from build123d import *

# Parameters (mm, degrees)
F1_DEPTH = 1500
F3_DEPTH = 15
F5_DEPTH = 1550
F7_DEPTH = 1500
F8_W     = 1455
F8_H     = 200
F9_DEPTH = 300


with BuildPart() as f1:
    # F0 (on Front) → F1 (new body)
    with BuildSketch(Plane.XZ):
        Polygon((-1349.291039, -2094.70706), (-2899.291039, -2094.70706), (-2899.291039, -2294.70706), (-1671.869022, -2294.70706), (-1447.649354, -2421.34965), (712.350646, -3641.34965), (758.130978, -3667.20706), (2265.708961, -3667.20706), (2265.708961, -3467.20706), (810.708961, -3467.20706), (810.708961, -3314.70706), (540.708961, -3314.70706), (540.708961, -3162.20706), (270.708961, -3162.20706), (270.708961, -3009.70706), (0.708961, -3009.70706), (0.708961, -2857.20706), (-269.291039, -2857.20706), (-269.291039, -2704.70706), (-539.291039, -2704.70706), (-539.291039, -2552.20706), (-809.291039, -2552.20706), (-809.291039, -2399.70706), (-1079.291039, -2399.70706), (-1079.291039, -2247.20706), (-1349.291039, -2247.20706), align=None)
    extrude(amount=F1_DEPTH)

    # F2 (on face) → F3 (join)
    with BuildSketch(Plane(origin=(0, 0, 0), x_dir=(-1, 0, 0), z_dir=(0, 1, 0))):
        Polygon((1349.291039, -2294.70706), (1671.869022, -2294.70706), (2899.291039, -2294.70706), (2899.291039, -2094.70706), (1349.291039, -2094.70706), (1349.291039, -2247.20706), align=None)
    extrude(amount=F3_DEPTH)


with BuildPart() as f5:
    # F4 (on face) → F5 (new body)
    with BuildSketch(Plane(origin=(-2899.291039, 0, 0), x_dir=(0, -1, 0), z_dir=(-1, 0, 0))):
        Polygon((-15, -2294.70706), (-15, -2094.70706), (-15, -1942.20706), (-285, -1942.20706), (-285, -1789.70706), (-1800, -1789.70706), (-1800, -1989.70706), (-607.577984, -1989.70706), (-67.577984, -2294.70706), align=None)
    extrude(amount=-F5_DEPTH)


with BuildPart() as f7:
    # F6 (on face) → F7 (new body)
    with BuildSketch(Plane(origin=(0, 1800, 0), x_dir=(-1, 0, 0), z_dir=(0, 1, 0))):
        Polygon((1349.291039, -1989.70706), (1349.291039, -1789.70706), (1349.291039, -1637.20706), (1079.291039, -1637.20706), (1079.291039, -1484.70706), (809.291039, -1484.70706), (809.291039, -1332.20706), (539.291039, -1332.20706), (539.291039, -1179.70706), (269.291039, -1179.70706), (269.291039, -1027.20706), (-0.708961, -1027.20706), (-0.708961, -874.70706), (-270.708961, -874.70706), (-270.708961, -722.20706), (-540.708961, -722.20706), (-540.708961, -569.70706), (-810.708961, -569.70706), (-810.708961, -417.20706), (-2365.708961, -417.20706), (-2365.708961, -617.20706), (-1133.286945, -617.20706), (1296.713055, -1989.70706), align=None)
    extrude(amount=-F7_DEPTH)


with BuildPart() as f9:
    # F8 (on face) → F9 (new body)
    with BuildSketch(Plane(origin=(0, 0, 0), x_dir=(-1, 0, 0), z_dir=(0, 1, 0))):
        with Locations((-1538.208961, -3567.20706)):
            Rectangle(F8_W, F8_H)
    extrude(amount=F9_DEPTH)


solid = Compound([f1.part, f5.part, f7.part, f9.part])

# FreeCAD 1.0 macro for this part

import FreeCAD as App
import Part
import Sketcher


def add_polygon(sketch, points):
    """Adds a closed chain of lines whose ends are joined by coincident constraints."""
    first, n = sketch.GeometryCount, len(points)
    for a, b in zip(points, points[1:] + points[:1]):
        sketch.addGeometry(Part.LineSegment(App.Vector(*a, 0), App.Vector(*b, 0)), False)
    for i in range(n):
        sketch.addConstraint(Sketcher.Constraint("Coincident", first + i, 2, first + (i + 1) % n, 1))

doc = App.newDocument("Part")
params = doc.addObject("Spreadsheet::Sheet", "Params")
for row, (alias, value) in enumerate([
    ("sketch1_width", "1550 mm"),
    ("sketch1_width2", "1455 mm"),
    ("sketch1_width3", "270 mm"),
    ("sketch1_height", "200 mm"),
    ("sketch1_height2", "152.5 mm"),
    ("pad1_length", "1500 mm"),
    ("sketch2_width", "1550 mm"),
    ("sketch2_height", "200 mm"),
    ("pad2_length", "15 mm"),
    ("sketch3_width", "270 mm"),
    ("sketch3_width2", "1515 mm"),
    ("sketch3_height", "200 mm"),
    ("sketch3_height2", "352.5 mm"),
    ("sketch3_height3", "152.5 mm"),
    ("pad3_length", "1550 mm"),
    ("sketch4_width", "270 mm"),
    ("sketch4_width2", "1555 mm"),
    ("sketch4_height", "200 mm"),
    ("sketch4_height2", "352.5 mm"),
    ("sketch4_height3", "152.5 mm"),
    ("pad4_length", "1500 mm"),
    ("sketch5_width", "1455 mm"),
    ("sketch5_height", "200 mm"),
    ("pad5_length", "300 mm"),
], start=1):
    params.set(f"A{row}", alias)
    params.set(f"B{row}", "=" + value)
    params.setAlias(f"B{row}", alias)

body = doc.addObject("PartDesign::Body", "Body")

# Sketch on XZ plane
sketch1 = doc.addObject("Sketcher::SketchObject", "Sketch")
body.addObject(sketch1)
sketch1.AttachmentSupport = (doc.XZ_Plane, [""])
sketch1.MapMode = "FlatFace"
add_polygon(sketch1, [(-1349.291039, -2094.70706), (-2899.291039, -2094.70706), (-2899.291039, -2294.70706), (-1671.869022, -2294.70706), (-1447.649354, -2421.34965), (712.350646, -3641.34965), (758.130978, -3667.20706), (2265.708961, -3667.20706), (2265.708961, -3467.20706), (810.708961, -3467.20706), (810.708961, -3314.70706), (540.708961, -3314.70706), (540.708961, -3162.20706), (270.708961, -3162.20706), (270.708961, -3009.70706), (0.708961, -3009.70706), (0.708961, -2857.20706), (-269.291039, -2857.20706), (-269.291039, -2704.70706), (-539.291039, -2704.70706), (-539.291039, -2552.20706), (-809.291039, -2552.20706), (-809.291039, -2399.70706), (-1079.291039, -2399.70706), (-1079.291039, -2247.20706), (-1349.291039, -2247.20706)])  # lines 0-25
sketch1.addConstraint(Sketcher.Constraint("Horizontal", 0))
sketch1.addConstraint(Sketcher.Constraint("Vertical", 1))
sketch1.addConstraint(Sketcher.Constraint("Horizontal", 2))
sketch1.addConstraint(Sketcher.Constraint("Horizontal", 6))
sketch1.addConstraint(Sketcher.Constraint("Vertical", 7))
sketch1.addConstraint(Sketcher.Constraint("Horizontal", 8))
sketch1.addConstraint(Sketcher.Constraint("Vertical", 9))
sketch1.addConstraint(Sketcher.Constraint("Horizontal", 10))
sketch1.addConstraint(Sketcher.Constraint("Vertical", 11))
sketch1.addConstraint(Sketcher.Constraint("Horizontal", 12))
sketch1.addConstraint(Sketcher.Constraint("Vertical", 13))
sketch1.addConstraint(Sketcher.Constraint("Horizontal", 14))
sketch1.addConstraint(Sketcher.Constraint("Vertical", 15))
sketch1.addConstraint(Sketcher.Constraint("Horizontal", 16))
sketch1.addConstraint(Sketcher.Constraint("Vertical", 17))
sketch1.addConstraint(Sketcher.Constraint("Horizontal", 18))
sketch1.addConstraint(Sketcher.Constraint("Vertical", 19))
sketch1.addConstraint(Sketcher.Constraint("Horizontal", 20))
sketch1.addConstraint(Sketcher.Constraint("Vertical", 21))
sketch1.addConstraint(Sketcher.Constraint("Horizontal", 22))
sketch1.addConstraint(Sketcher.Constraint("Vertical", 23))
sketch1.addConstraint(Sketcher.Constraint("Horizontal", 24))
sketch1.addConstraint(Sketcher.Constraint("Vertical", 25))
sketch1.addConstraint(Sketcher.Constraint("Parallel", 3, 4))
sketch1.addConstraint(Sketcher.Constraint("Parallel", 4, 5))
sketch1.addConstraint(Sketcher.Constraint("Equal", 10, 12))
sketch1.addConstraint(Sketcher.Constraint("Equal", 12, 14))
sketch1.addConstraint(Sketcher.Constraint("Equal", 14, 16))
sketch1.addConstraint(Sketcher.Constraint("Equal", 16, 18))
sketch1.addConstraint(Sketcher.Constraint("Equal", 18, 20))
sketch1.addConstraint(Sketcher.Constraint("Equal", 20, 22))
sketch1.addConstraint(Sketcher.Constraint("Equal", 22, 24))
sketch1.addConstraint(Sketcher.Constraint("Equal", 1, 7))
sketch1.addConstraint(Sketcher.Constraint("Equal", 9, 11))
sketch1.addConstraint(Sketcher.Constraint("Equal", 11, 13))
sketch1.addConstraint(Sketcher.Constraint("Equal", 13, 15))
sketch1.addConstraint(Sketcher.Constraint("Equal", 15, 17))
sketch1.addConstraint(Sketcher.Constraint("Equal", 17, 19))
sketch1.addConstraint(Sketcher.Constraint("Equal", 19, 21))
sketch1.addConstraint(Sketcher.Constraint("Equal", 21, 23))
sketch1.addConstraint(Sketcher.Constraint("Equal", 23, 25))
sketch1.addConstraint(Sketcher.Constraint("DistanceX", 0, 2, 0, 1, 1550.0))
sketch1.addConstraint(Sketcher.Constraint("DistanceX", 8, 2, 8, 1, 1455.0))
sketch1.addConstraint(Sketcher.Constraint("DistanceX", 10, 2, 10, 1, 270.0))
sketch1.addConstraint(Sketcher.Constraint("DistanceY", 1, 2, 1, 1, 200.0))
sketch1.addConstraint(Sketcher.Constraint("DistanceY", 9, 1, 9, 2, 152.5))
sketch1.addConstraint(Sketcher.Constraint("DistanceX", 3, 2, 4, 2, 2160.0))
sketch1.addConstraint(Sketcher.Constraint("DistanceY", 4, 2, 3, 2, 1220.0))
sketch1.addConstraint(Sketcher.Constraint("Distance", 3, 257.512728))
sketch1.addConstraint(Sketcher.Constraint("DistanceX", 2, 1, 2, 2, 1227.422017))
sketch1.addConstraint(Sketcher.Constraint("DistanceX", 0, 2, -1, 1, 2899.291039))
sketch1.addConstraint(Sketcher.Constraint("DistanceY", 0, 2, -1, 1, 2094.70706))
sketch1.setExpression("Constraints[67]", "Params.sketch1_width")
sketch1.setExpression("Constraints[68]", "Params.sketch1_width2")
sketch1.setExpression("Constraints[69]", "Params.sketch1_width3")
sketch1.setExpression("Constraints[70]", "Params.sketch1_height")
sketch1.setExpression("Constraints[71]", "Params.sketch1_height2")
pad1 = doc.addObject("PartDesign::Pad", "Pad")
body.addObject(pad1)
pad1.Profile = sketch1
pad1.setExpression("Length", "Params.pad1_length")

# Sketch on XZ plane
sketch2 = doc.addObject("Sketcher::SketchObject", "Sketch001")
body.addObject(sketch2)
sketch2.AttachmentSupport = (doc.XZ_Plane, [""])
sketch2.MapMode = "FlatFace"
add_polygon(sketch2, [(-1349.291039, -2294.70706), (-2899.291039, -2294.70706), (-2899.291039, -2094.70706), (-1349.291039, -2094.70706)])  # lines 0-3
sketch2.addConstraint(Sketcher.Constraint("Horizontal", 0))
sketch2.addConstraint(Sketcher.Constraint("Vertical", 1))
sketch2.addConstraint(Sketcher.Constraint("Horizontal", 2))
sketch2.addConstraint(Sketcher.Constraint("Vertical", 3))
sketch2.addConstraint(Sketcher.Constraint("DistanceX", 0, 2, 0, 1, 1550.0))
sketch2.addConstraint(Sketcher.Constraint("DistanceY", 1, 1, 1, 2, 200.0))
sketch2.addConstraint(Sketcher.Constraint("DistanceX", 0, 2, -1, 1, 2899.291039))
sketch2.addConstraint(Sketcher.Constraint("DistanceY", 0, 2, -1, 1, 2294.70706))
sketch2.setExpression("Constraints[8]", "Params.sketch2_width")
sketch2.setExpression("Constraints[9]", "Params.sketch2_height")
pad2 = doc.addObject("PartDesign::Pad", "Pad001")
body.addObject(pad2)
pad2.Profile = sketch2
pad2.setExpression("Length", "Params.pad2_length")
pad2.Reversed = True
body2 = doc.addObject("PartDesign::Body", "Body001")

# Sketch on YZ plane
sketch3 = doc.addObject("Sketcher::SketchObject", "Sketch002")
body2.addObject(sketch3)
sketch3.AttachmentSupport = (doc.getObject("YZ_Plane001"), [""])
sketch3.MapMode = "FlatFace"
sketch3.AttachmentOffset = App.Placement(App.Vector(0, 0, -2899.291039), App.Rotation())
add_polygon(sketch3, [(15, -2294.70706), (15, -1942.20706), (285, -1942.20706), (285, -1789.70706), (1800, -1789.70706), (1800, -1989.70706), (607.577984, -1989.70706), (67.577984, -2294.70706)])  # lines 0-7
sketch3.addConstraint(Sketcher.Constraint("Vertical", 0))
sketch3.addConstraint(Sketcher.Constraint("Horizontal", 1))
sketch3.addConstraint(Sketcher.Constraint("Vertical", 2))
sketch3.addConstraint(Sketcher.Constraint("Horizontal", 3))
sketch3.addConstraint(Sketcher.Constraint("Vertical", 4))
sketch3.addConstraint(Sketcher.Constraint("Horizontal", 5))
sketch3.addConstraint(Sketcher.Constraint("Horizontal", 7))
sketch3.addConstraint(Sketcher.Constraint("DistanceX", 1, 1, 1, 2, 270.0))
sketch3.addConstraint(Sketcher.Constraint("DistanceX", 3, 1, 3, 2, 1515.0))
sketch3.addConstraint(Sketcher.Constraint("DistanceY", 4, 2, 4, 1, 200.0))
sketch3.addConstraint(Sketcher.Constraint("DistanceY", 0, 1, 0, 2, 352.5))
sketch3.addConstraint(Sketcher.Constraint("DistanceY", 2, 1, 2, 2, 152.5))
sketch3.addConstraint(Sketcher.Constraint("DistanceX", -1, 1, 0, 2, 15.0))
sketch3.addConstraint(Sketcher.Constraint("DistanceX", 6, 2, 5, 2, 540.0))
sketch3.addConstraint(Sketcher.Constraint("DistanceX", 5, 2, 5, 1, 1192.422016))
sketch3.addConstraint(Sketcher.Constraint("DistanceY", 0, 2, -1, 1, 1942.20706))
sketch3.setExpression("Constraints[15]", "Params.sketch3_width")
sketch3.setExpression("Constraints[16]", "Params.sketch3_width2")
sketch3.setExpression("Constraints[17]", "Params.sketch3_height")
sketch3.setExpression("Constraints[18]", "Params.sketch3_height2")
sketch3.setExpression("Constraints[19]", "Params.sketch3_height3")
pad3 = doc.addObject("PartDesign::Pad", "Pad002")
body2.addObject(pad3)
pad3.Profile = sketch3
pad3.setExpression("Length", "Params.pad3_length")
body3 = doc.addObject("PartDesign::Body", "Body002")

# Sketch on XZ plane
sketch4 = doc.addObject("Sketcher::SketchObject", "Sketch003")
body3.addObject(sketch4)
sketch4.AttachmentSupport = (doc.getObject("XZ_Plane002"), [""])
sketch4.MapMode = "FlatFace"
sketch4.AttachmentOffset = App.Placement(App.Vector(0, 0, -1800), App.Rotation())
add_polygon(sketch4, [(-1349.291039, -1989.70706), (-1349.291039, -1637.20706), (-1079.291039, -1637.20706), (-1079.291039, -1484.70706), (-809.291039, -1484.70706), (-809.291039, -1332.20706), (-539.291039, -1332.20706), (-539.291039, -1179.70706), (-269.291039, -1179.70706), (-269.291039, -1027.20706), (0.708961, -1027.20706), (0.708961, -874.70706), (270.708961, -874.70706), (270.708961, -722.20706), (540.708961, -722.20706), (540.708961, -569.70706), (810.708961, -569.70706), (810.708961, -417.20706), (2365.708961, -417.20706), (2365.708961, -617.20706), (1133.286945, -617.20706), (-1296.713055, -1989.70706)])  # lines 0-21
sketch4.addConstraint(Sketcher.Constraint("Vertical", 0))
sketch4.addConstraint(Sketcher.Constraint("Horizontal", 1))
sketch4.addConstraint(Sketcher.Constraint("Vertical", 2))
sketch4.addConstraint(Sketcher.Constraint("Horizontal", 3))
sketch4.addConstraint(Sketcher.Constraint("Vertical", 4))
sketch4.addConstraint(Sketcher.Constraint("Horizontal", 5))
sketch4.addConstraint(Sketcher.Constraint("Vertical", 6))
sketch4.addConstraint(Sketcher.Constraint("Horizontal", 7))
sketch4.addConstraint(Sketcher.Constraint("Vertical", 8))
sketch4.addConstraint(Sketcher.Constraint("Horizontal", 9))
sketch4.addConstraint(Sketcher.Constraint("Vertical", 10))
sketch4.addConstraint(Sketcher.Constraint("Horizontal", 11))
sketch4.addConstraint(Sketcher.Constraint("Vertical", 12))
sketch4.addConstraint(Sketcher.Constraint("Horizontal", 13))
sketch4.addConstraint(Sketcher.Constraint("Vertical", 14))
sketch4.addConstraint(Sketcher.Constraint("Horizontal", 15))
sketch4.addConstraint(Sketcher.Constraint("Vertical", 16))
sketch4.addConstraint(Sketcher.Constraint("Horizontal", 17))
sketch4.addConstraint(Sketcher.Constraint("Vertical", 18))
sketch4.addConstraint(Sketcher.Constraint("Horizontal", 19))
sketch4.addConstraint(Sketcher.Constraint("Horizontal", 21))
sketch4.addConstraint(Sketcher.Constraint("Equal", 1, 3))
sketch4.addConstraint(Sketcher.Constraint("Equal", 3, 5))
sketch4.addConstraint(Sketcher.Constraint("Equal", 5, 7))
sketch4.addConstraint(Sketcher.Constraint("Equal", 7, 9))
sketch4.addConstraint(Sketcher.Constraint("Equal", 9, 11))
sketch4.addConstraint(Sketcher.Constraint("Equal", 11, 13))
sketch4.addConstraint(Sketcher.Constraint("Equal", 13, 15))
sketch4.addConstraint(Sketcher.Constraint("Equal", 2, 4))
sketch4.addConstraint(Sketcher.Constraint("Equal", 4, 6))
sketch4.addConstraint(Sketcher.Constraint("Equal", 6, 8))
sketch4.addConstraint(Sketcher.Constraint("Equal", 8, 10))
sketch4.addConstraint(Sketcher.Constraint("Equal", 10, 12))
sketch4.addConstraint(Sketcher.Constraint("Equal", 12, 14))
sketch4.addConstraint(Sketcher.Constraint("Equal", 14, 16))
sketch4.addConstraint(Sketcher.Constraint("DistanceX", 1, 1, 1, 2, 270.0))
sketch4.addConstraint(Sketcher.Constraint("DistanceX", 17, 1, 17, 2, 1555.0))
sketch4.addConstraint(Sketcher.Constraint("DistanceY", 18, 2, 18, 1, 200.0))
sketch4.addConstraint(Sketcher.Constraint("DistanceY", 0, 1, 0, 2, 352.5))
sketch4.addConstraint(Sketcher.Constraint("DistanceY", 2, 1, 2, 2, 152.5))
sketch4.addConstraint(Sketcher.Constraint("DistanceX", 19, 2, 19, 1, 1232.422016))
sketch4.addConstraint(Sketcher.Constraint("DistanceX", 21, 2, 21, 1, 52.577984))
sketch4.addConstraint(Sketcher.Constraint("DistanceX", 0, 2, -1, 1, 1349.291039))
sketch4.addConstraint(Sketcher.Constraint("DistanceY", 0, 2, -1, 1, 1637.20706))
sketch4.setExpression("Constraints[57]", "Params.sketch4_width")
sketch4.setExpression("Constraints[58]", "Params.sketch4_width2")
sketch4.setExpression("Constraints[59]", "Params.sketch4_height")
sketch4.setExpression("Constraints[60]", "Params.sketch4_height2")
sketch4.setExpression("Constraints[61]", "Params.sketch4_height3")
pad4 = doc.addObject("PartDesign::Pad", "Pad003")
body3.addObject(pad4)
pad4.Profile = sketch4
pad4.setExpression("Length", "Params.pad4_length")
body4 = doc.addObject("PartDesign::Body", "Body003")

# Sketch on XZ plane
sketch5 = doc.addObject("Sketcher::SketchObject", "Sketch004")
body4.addObject(sketch5)
sketch5.AttachmentSupport = (doc.getObject("XZ_Plane003"), [""])
sketch5.MapMode = "FlatFace"
add_polygon(sketch5, [(2265.708961, -3467.20706), (2265.708961, -3667.20706), (810.708961, -3667.20706), (810.708961, -3467.20706)])  # lines 0-3
sketch5.addConstraint(Sketcher.Constraint("Vertical", 0))
sketch5.addConstraint(Sketcher.Constraint("Horizontal", 1))
sketch5.addConstraint(Sketcher.Constraint("Vertical", 2))
sketch5.addConstraint(Sketcher.Constraint("Horizontal", 3))
sketch5.addConstraint(Sketcher.Constraint("DistanceX", 1, 2, 1, 1, 1455.0))
sketch5.addConstraint(Sketcher.Constraint("DistanceY", 0, 2, 0, 1, 200.0))
sketch5.addConstraint(Sketcher.Constraint("DistanceX", -1, 1, 0, 2, 2265.708961))
sketch5.addConstraint(Sketcher.Constraint("DistanceY", 0, 2, -1, 1, 3667.20706))
sketch5.setExpression("Constraints[8]", "Params.sketch5_width")
sketch5.setExpression("Constraints[9]", "Params.sketch5_height")
pad5 = doc.addObject("PartDesign::Pad", "Pad004")
body4.addObject(pad5)
pad5.Profile = sketch5
pad5.setExpression("Length", "Params.pad5_length")
pad5.Reversed = True

doc.recompute()
